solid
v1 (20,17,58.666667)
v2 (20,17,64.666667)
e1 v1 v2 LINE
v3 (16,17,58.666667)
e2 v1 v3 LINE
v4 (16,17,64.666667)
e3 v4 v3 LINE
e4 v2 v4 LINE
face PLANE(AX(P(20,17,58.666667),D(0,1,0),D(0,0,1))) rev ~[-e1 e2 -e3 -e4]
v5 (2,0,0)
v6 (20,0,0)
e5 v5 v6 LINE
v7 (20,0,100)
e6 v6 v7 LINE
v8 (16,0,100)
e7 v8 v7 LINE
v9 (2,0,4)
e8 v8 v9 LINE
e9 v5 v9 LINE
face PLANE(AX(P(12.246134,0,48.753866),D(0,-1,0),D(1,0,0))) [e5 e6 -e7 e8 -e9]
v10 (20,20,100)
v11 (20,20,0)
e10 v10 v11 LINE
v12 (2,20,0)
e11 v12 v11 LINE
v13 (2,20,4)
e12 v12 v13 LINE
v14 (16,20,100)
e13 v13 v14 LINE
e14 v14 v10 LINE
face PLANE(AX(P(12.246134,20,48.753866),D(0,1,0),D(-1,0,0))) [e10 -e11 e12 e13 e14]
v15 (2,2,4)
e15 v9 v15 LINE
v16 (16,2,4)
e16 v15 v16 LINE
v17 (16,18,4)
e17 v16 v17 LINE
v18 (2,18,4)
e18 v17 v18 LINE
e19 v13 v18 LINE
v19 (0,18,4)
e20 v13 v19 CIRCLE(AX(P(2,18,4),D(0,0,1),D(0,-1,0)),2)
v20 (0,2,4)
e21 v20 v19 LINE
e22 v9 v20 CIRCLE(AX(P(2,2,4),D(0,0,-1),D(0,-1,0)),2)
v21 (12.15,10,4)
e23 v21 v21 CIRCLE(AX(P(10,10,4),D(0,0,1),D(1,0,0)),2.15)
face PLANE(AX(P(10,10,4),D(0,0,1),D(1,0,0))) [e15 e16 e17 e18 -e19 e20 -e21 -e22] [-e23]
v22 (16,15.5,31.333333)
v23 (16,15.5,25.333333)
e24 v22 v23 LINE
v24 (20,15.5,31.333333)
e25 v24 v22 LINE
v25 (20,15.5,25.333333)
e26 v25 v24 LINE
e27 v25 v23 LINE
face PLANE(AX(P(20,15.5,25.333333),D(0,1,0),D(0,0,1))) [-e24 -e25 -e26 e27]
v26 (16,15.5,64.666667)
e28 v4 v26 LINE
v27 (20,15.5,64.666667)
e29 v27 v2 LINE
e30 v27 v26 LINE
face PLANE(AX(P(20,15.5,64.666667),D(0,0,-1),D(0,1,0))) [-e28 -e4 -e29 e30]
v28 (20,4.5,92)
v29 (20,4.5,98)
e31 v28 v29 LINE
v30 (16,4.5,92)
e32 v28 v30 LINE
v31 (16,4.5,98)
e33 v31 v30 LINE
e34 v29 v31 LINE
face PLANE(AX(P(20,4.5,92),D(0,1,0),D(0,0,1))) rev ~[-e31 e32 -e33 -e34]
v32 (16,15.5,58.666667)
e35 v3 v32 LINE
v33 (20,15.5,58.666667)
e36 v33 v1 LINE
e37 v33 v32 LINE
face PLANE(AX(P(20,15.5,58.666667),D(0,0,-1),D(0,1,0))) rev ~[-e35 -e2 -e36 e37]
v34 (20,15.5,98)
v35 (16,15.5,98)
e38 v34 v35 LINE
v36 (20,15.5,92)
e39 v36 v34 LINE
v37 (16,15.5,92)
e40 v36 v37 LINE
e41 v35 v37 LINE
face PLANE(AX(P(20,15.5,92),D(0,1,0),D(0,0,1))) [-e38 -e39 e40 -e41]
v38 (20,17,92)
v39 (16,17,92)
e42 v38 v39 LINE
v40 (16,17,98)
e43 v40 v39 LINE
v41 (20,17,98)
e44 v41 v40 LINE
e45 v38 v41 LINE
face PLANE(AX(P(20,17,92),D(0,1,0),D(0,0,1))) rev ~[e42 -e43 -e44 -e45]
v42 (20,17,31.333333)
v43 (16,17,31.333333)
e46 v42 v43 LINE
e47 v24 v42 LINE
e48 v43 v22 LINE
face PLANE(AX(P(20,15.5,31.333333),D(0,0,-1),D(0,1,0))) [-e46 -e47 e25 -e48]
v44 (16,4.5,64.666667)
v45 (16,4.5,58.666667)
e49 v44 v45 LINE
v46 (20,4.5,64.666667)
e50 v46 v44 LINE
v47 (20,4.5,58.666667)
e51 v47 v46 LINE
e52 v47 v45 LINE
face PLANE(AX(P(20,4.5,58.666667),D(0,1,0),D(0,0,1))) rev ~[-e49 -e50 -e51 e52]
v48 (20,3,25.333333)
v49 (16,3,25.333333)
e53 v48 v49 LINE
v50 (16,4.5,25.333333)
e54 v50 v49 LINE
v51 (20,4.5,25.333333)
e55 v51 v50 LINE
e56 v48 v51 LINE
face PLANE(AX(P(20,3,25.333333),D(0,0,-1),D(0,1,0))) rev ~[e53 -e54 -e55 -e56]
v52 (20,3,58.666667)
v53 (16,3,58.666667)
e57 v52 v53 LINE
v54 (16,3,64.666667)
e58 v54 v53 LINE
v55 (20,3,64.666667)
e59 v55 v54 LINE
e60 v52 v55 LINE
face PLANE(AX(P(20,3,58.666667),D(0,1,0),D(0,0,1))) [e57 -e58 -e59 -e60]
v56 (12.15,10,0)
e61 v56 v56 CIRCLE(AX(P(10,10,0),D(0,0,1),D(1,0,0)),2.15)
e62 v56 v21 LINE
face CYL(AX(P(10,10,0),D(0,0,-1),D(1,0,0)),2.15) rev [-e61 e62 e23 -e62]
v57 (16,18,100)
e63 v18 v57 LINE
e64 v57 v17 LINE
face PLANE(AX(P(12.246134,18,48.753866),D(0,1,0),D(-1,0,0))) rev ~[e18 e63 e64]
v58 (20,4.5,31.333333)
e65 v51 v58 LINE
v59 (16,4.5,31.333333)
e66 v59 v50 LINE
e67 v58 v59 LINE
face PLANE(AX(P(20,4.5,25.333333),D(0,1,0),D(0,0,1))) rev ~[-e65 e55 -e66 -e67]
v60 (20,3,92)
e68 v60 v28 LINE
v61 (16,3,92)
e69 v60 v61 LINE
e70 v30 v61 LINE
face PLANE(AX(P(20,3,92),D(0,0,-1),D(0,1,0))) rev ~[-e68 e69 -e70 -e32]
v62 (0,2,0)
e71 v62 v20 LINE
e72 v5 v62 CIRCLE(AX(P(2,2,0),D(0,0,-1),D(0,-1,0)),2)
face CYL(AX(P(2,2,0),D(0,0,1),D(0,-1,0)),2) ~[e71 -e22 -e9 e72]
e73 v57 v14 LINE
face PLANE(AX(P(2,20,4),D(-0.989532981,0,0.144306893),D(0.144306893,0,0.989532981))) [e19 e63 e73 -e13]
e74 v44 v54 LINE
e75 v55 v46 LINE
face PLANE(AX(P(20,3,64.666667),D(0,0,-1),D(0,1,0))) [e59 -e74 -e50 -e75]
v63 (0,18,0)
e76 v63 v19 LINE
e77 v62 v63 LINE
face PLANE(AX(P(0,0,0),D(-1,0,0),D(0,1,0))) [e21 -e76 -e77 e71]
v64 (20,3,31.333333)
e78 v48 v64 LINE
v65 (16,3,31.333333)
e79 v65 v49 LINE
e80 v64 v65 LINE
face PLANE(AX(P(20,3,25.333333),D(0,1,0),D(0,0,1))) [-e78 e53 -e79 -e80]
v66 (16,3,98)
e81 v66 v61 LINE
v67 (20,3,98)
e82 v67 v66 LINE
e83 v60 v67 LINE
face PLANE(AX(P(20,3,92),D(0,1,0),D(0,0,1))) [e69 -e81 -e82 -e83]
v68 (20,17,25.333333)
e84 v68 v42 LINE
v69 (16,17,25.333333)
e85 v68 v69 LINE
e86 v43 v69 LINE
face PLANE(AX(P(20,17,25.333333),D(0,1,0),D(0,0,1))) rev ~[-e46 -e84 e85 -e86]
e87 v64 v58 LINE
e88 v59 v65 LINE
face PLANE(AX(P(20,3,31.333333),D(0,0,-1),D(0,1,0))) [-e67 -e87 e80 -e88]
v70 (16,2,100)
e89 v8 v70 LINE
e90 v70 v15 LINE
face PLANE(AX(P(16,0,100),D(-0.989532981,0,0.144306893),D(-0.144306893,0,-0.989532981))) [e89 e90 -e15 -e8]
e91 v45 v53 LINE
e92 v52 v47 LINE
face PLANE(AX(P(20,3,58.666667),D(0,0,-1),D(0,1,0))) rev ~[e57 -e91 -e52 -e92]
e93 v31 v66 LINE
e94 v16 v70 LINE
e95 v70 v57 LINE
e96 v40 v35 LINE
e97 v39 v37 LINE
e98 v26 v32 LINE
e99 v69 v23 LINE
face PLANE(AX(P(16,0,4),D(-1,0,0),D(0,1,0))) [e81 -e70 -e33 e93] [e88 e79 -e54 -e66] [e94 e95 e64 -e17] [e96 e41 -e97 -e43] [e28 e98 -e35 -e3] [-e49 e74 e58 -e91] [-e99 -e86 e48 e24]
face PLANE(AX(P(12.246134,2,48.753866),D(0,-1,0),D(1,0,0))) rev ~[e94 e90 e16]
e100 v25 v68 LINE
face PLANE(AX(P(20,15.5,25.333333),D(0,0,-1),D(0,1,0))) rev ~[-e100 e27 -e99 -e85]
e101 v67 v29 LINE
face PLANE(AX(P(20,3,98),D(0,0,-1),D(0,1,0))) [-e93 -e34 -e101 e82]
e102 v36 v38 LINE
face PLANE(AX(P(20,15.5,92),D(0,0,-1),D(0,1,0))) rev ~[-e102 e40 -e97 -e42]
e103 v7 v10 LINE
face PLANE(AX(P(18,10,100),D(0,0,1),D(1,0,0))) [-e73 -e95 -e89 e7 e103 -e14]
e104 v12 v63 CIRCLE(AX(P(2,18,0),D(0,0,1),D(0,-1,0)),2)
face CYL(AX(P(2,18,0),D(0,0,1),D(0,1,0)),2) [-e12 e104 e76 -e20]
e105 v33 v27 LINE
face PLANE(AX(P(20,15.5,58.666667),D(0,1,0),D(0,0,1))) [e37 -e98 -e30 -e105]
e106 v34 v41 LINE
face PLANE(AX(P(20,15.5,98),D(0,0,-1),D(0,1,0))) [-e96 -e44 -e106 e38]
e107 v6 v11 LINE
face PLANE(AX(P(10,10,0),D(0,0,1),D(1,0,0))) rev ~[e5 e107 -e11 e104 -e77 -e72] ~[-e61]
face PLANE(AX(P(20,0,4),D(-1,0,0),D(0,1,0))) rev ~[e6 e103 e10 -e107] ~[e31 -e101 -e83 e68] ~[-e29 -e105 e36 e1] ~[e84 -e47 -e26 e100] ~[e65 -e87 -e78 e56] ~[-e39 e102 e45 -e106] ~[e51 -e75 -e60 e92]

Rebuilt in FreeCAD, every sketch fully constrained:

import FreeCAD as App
import Part
import Sketcher

V = App.Vector
Q = App.Units.Quantity


def edges_at(feature, points):
    """Names of the edges that pass closest to the given points."""
    edges = feature.Shape.Edges
    near = lambda p: min(range(len(edges)), key=lambda i: edges[i].distToShape(Part.Vertex(*p))[0])
    return sorted({f"Edge{near(p) + 1}" for p in points})


def add_polygon(sketch, points):
    """Adds a closed chain of lines whose ends are joined by coincident constraints."""
    first, n = sketch.GeometryCount, len(points)
    for a, b in zip(points, points[1:] + points[:1]):
        sketch.addGeometry(Part.LineSegment(App.Vector(*a, 0), App.Vector(*b, 0)), False)
    for i in range(n):
        sketch.addConstraint(Sketcher.Constraint("Coincident", first + i, 2, first + (i + 1) % n, 1))

doc = App.newDocument("Part")
body = doc.addObject("PartDesign::Body", "Body")

sketch1 = doc.addObject("Sketcher::SketchObject", "Sketch")
body.addObject(sketch1)
sketch1.AttachmentSupport = (doc.XY_Plane, [""])
sketch1.MapMode = "FlatFace"
add_polygon(sketch1, [(0, 20), (0, 0), (20, 0), (20, 20)])
sketch1.addGeometry(Part.Circle(V(10, 10, 0), V(0, 0, 1), 2.15), False)
sketch1.addConstraint([
    Sketcher.Constraint("Vertical", 0),
    Sketcher.Constraint("Horizontal", 1),
    Sketcher.Constraint("Vertical", 2),
    Sketcher.Constraint("Horizontal", 3),
    Sketcher.Constraint("Coincident", 0, 2, -1, 1),
    Sketcher.Constraint("Equal", 3, 0),
    Sketcher.Constraint("Diameter", 4, Q("4.3 mm")),
    Sketcher.Constraint("DistanceX", 1, 1, 1, 2, Q("20 mm")),
    Sketcher.Constraint("DistanceX", -1, 1, 4, 3, Q("10 mm")),
    Sketcher.Constraint("DistanceY", -1, 1, 4, 3, Q("10 mm")),
])
pad1 = doc.addObject("PartDesign::Pad", "Pad")
body.addObject(pad1)
pad1.Profile = sketch1
pad1.Length = 4

sketch2 = doc.addObject("Sketcher::SketchObject", "Sketch001")
body.addObject(sketch2)
sketch2.AttachmentSupport = (doc.XY_Plane, [""])
sketch2.MapMode = "FlatFace"
sketch2.AttachmentOffset = App.Placement(V(0, 0, 4), App.Rotation())
add_polygon(sketch2, [(16, 20), (16, 0), (20, 0), (20, 20)])
sketch2.addConstraint([
    Sketcher.Constraint("Vertical", 0),
    Sketcher.Constraint("Horizontal", 1),
    Sketcher.Constraint("Vertical", 2),
    Sketcher.Constraint("Horizontal", 3),
    Sketcher.Constraint("PointOnObject", 0, 2, -1),
    Sketcher.Constraint("DistanceX", 1, 1, 1, 2, Q("4 mm")),
    Sketcher.Constraint("DistanceY", 0, 2, 0, 1, Q("20 mm")),
    Sketcher.Constraint("DistanceX", -1, 1, 0, 2, Q("16 mm")),
])
pad2 = doc.addObject("PartDesign::Pad", "Pad001")
body.addObject(pad2)
pad2.Profile = sketch2
pad2.Length = 96

sketch3 = doc.addObject("Sketcher::SketchObject", "Sketch002")
body.addObject(sketch3)
sketch3.AttachmentSupport = (doc.YZ_Plane, [""])
sketch3.MapMode = "FlatFace"
sketch3.AttachmentOffset = App.Placement(V(0, 0, 20), App.Rotation())
add_polygon(sketch3, [(3, 98), (3, 92), (4.5, 92), (4.5, 98)])
add_polygon(sketch3, [(15.5, 98), (15.5, 92), (17, 92), (17, 98)])
add_polygon(sketch3, [(3, 64.666667), (3, 58.666667), (4.5, 58.666667), (4.5, 64.666667)])
add_polygon(sketch3, [(15.5, 64.666667), (15.5, 58.666667), (17, 58.666667), (17, 64.666667)])
add_polygon(sketch3, [(3, 31.333333), (3, 25.333333), (4.5, 25.333333), (4.5, 31.333333)])
add_polygon(sketch3, [(15.5, 31.333333), (15.5, 25.333333), (17, 25.333333), (17, 31.333333)])
sketch3.addConstraint([
    Sketcher.Constraint("Vertical", 0),
    Sketcher.Constraint("Horizontal", 1),
    Sketcher.Constraint("Vertical", 2),
    Sketcher.Constraint("Horizontal", 3),
    Sketcher.Constraint("Vertical", 4),
    Sketcher.Constraint("Horizontal", 5),
    Sketcher.Constraint("Vertical", 6),
    Sketcher.Constraint("Horizontal", 7),
    Sketcher.Constraint("Vertical", 8),
    Sketcher.Constraint("Horizontal", 9),
    Sketcher.Constraint("Vertical", 10),
    Sketcher.Constraint("Horizontal", 11),
    Sketcher.Constraint("Vertical", 12),
    Sketcher.Constraint("Horizontal", 13),
    Sketcher.Constraint("Vertical", 14),
    Sketcher.Constraint("Horizontal", 15),
    Sketcher.Constraint("Vertical", 16),
    Sketcher.Constraint("Horizontal", 17),
    Sketcher.Constraint("Vertical", 18),
    Sketcher.Constraint("Horizontal", 19),
    Sketcher.Constraint("Vertical", 20),
    Sketcher.Constraint("Horizontal", 21),
    Sketcher.Constraint("Vertical", 22),
    Sketcher.Constraint("Horizontal", 23),
    Sketcher.Constraint("Horizontal", 1, 2, 4, 2),
    Sketcher.Constraint("Horizontal", 3, 2, 6, 2),
    Sketcher.Constraint("Horizontal", 9, 2, 12, 2),
    Sketcher.Constraint("Horizontal", 11, 2, 14, 2),
    Sketcher.Constraint("Horizontal", 17, 2, 20, 2),
    Sketcher.Constraint("Horizontal", 19, 2, 22, 2),
    Sketcher.Constraint("Vertical", 3, 2, 8, 2),
    Sketcher.Constraint("Vertical", 2, 2, 9, 2),
    Sketcher.Constraint("Vertical", 7, 2, 12, 2),
    Sketcher.Constraint("Vertical", 6, 2, 13, 2),
    Sketcher.Constraint("Vertical", 11, 2, 16, 2),
    Sketcher.Constraint("Vertical", 10, 2, 17, 2),
    Sketcher.Constraint("Vertical", 15, 2, 20, 2),
    Sketcher.Constraint("Vertical", 14, 2, 21, 2),
    Sketcher.Constraint("Equal", 3, 5),
    Sketcher.Constraint("Equal", 6, 8),
    Sketcher.Constraint("Equal", 14, 16),
    Sketcher.Constraint("DistanceY", 0, 2, 0, 1, Q("6 mm")),
    Sketcher.Constraint("DistanceX", 1, 1, 1, 2, Q("1.5 mm")),
    Sketcher.Constraint("DistanceX", -1, 1, 0, 2, Q("3 mm")),
    Sketcher.Constraint("DistanceY", -1, 1, 0, 2, Q("92 mm")),
    Sketcher.Constraint("DistanceX", -1, 1, 5, 2, Q("17 mm")),
    Sketcher.Constraint("DistanceY", -1, 1, 8, 2, Q("58.666667 mm")),
    Sketcher.Constraint("DistanceY", -1, 1, 16, 2, Q("25.333333 mm")),
])
pocket1 = doc.addObject("PartDesign::Pocket", "Pocket")
body.addObject(pocket1)
pocket1.Profile = sketch3
pocket1.Type = "ThroughAll"
doc.recompute()

fillet = doc.addObject("PartDesign::Fillet", "Fillet")
body.addObject(fillet)
fillet.Base = (pocket1, edges_at(pocket1, [(0, 0, 2), (0, 20, 2)]))
fillet.Radius = 2

sketch4 = doc.addObject("Sketcher::SketchObject", "Sketch003")
body.addObject(sketch4)
sketch4.AttachmentSupport = (doc.XZ_Plane, [""])
sketch4.MapMode = "FlatFace"
add_polygon(sketch4, [(16, 4), (16, 100), (2, 4)])
sketch4.addConstraint([
    Sketcher.Constraint("Vertical", 0),
    Sketcher.Constraint("Horizontal", 2),
    Sketcher.Constraint("DistanceX", 2, 1, 2, 2, Q("14 mm")),
    Sketcher.Constraint("DistanceY", 0, 1, 0, 2, Q("96 mm")),
    Sketcher.Constraint("DistanceX", -1, 1, 0, 2, Q("16 mm")),
    Sketcher.Constraint("DistanceY", -1, 1, 0, 2, Q("100 mm")),
])
pad3 = doc.addObject("PartDesign::Pad", "Pad002")
body.addObject(pad3)
pad3.Profile = sketch4
pad3.Length = 2
pad3.Reversed = True

sketch5 = doc.addObject("Sketcher::SketchObject", "Sketch004")
body.addObject(sketch5)
sketch5.AttachmentSupport = (doc.XZ_Plane, [""])
sketch5.MapMode = "FlatFace"
sketch5.AttachmentOffset = App.Placement(V(0, 0, -20), App.Rotation())
add_polygon(sketch5, [(16, 4), (2, 4), (16, 100)])
sketch5.addConstraint([
    Sketcher.Constraint("Horizontal", 0),
    Sketcher.Constraint("Vertical", 2),
    Sketcher.Constraint("DistanceX", 0, 2, 0, 1, Q("14 mm")),
    Sketcher.Constraint("DistanceY", 2, 2, 2, 1, Q("96 mm")),
    Sketcher.Constraint("DistanceX", -1, 1, 0, 2, Q("2 mm")),
    Sketcher.Constraint("DistanceY", -1, 1, 0, 2, Q("4 mm")),
])
pad4 = doc.addObject("PartDesign::Pad", "Pad003")
body.addObject(pad4)
pad4.Profile = sketch5
pad4.Length = 2

doc.recompute()
